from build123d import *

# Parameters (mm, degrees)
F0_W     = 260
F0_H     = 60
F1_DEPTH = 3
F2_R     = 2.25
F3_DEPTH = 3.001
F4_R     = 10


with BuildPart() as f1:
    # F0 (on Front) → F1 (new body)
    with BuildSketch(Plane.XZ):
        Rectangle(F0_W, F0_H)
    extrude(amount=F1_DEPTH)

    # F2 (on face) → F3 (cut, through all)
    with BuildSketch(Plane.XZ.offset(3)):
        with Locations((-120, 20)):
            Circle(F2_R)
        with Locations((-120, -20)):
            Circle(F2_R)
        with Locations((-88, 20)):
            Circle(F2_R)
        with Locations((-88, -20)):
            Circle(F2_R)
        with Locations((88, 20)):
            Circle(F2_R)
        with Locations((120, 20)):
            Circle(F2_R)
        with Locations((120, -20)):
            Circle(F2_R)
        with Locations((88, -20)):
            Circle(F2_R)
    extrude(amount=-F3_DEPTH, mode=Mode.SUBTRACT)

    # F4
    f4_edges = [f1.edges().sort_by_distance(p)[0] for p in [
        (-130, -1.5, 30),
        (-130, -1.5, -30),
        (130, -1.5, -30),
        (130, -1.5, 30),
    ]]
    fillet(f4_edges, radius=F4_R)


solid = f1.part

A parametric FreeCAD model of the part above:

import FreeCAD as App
import Part
import Sketcher
from FreeCAD import Vector
Q = App.Units.Quantity


def edges_at(feature, points):
    """Names of the edges that pass closest to the given points."""
    edges = feature.Shape.Edges
    near = lambda p: min(range(len(edges)), key=lambda i: edges[i].distToShape(Part.Vertex(*p))[0])
    return sorted({f"Edge{near(p) + 1}" for p in points})

doc = App.newDocument("Part")
params = doc.addObject("Spreadsheet::Sheet", "Params")
for row, (alias, value) in enumerate([
    ("sketch1_width", "260 mm"),
    ("sketch1_height", "60 mm"),
    ("pad1_length", "3 mm"),
    ("sketch2_diameter", "4.5 mm"),
    ("fillet_radius", "10 mm"),
], start=1):
    params.set(f"A{row}", alias)
    params.set(f"B{row}", "=" + value)
    params.setAlias(f"B{row}", alias)

body = doc.addObject("PartDesign::Body", "Body")

# Sketch on XZ plane
sketch1 = doc.addObject("Sketcher::SketchObject", "Sketch")
body.addObject(sketch1)
sketch1.AttachmentSupport = (doc.XZ_Plane, [""])
sketch1.MapMode = "FlatFace"
sketch1.addGeometry([
    Part.LineSegment(Vector(-130, 30, 0), Vector(-130, -30, 0)),
    Part.LineSegment(Vector(-130, -30, 0), Vector(130, -30, 0)),
    Part.LineSegment(Vector(130, -30, 0), Vector(130, 30, 0)),
    Part.LineSegment(Vector(130, 30, 0), Vector(-130, 30, 0)),
], False)
sketch1.addConstraint([
    Sketcher.Constraint("Coincident", 0, 2, 1, 1),
    Sketcher.Constraint("Coincident", 1, 2, 2, 1),
    Sketcher.Constraint("Coincident", 2, 2, 3, 1),
    Sketcher.Constraint("Coincident", 3, 2, 0, 1),
    Sketcher.Constraint("Vertical", 0),
    Sketcher.Constraint("Horizontal", 1),
    Sketcher.Constraint("Vertical", 2),
    Sketcher.Constraint("Horizontal", 3),
    Sketcher.Constraint("Symmetric", 0, 2, 2, 2, -1, 1),
    Sketcher.Constraint("DistanceX", 1, 1, 1, 2, Q("260 mm")),
    Sketcher.Constraint("DistanceY", 0, 2, 0, 1, Q("60 mm")),
])
sketch1.setExpression("Constraints[9]", "Params.sketch1_width")
sketch1.setExpression("Constraints[10]", "Params.sketch1_height")
pad1 = doc.addObject("PartDesign::Pad", "Pad")
body.addObject(pad1)
pad1.Profile = sketch1
pad1.setExpression("Length", "Params.pad1_length")

# Sketch on XZ plane
sketch2 = doc.addObject("Sketcher::SketchObject", "Sketch001")
body.addObject(sketch2)
sketch2.AttachmentSupport = (doc.XZ_Plane, [""])
sketch2.MapMode = "FlatFace"
sketch2.AttachmentOffset = App.Placement(Vector(0, 0, 3), App.Rotation())
sketch2.addGeometry([
    Part.Circle(Vector(-120, 20, 0), Vector(0, 0, 1), 2.2),  # 0
    Part.Circle(Vector(-120, -20, 0), Vector(0, 0, 1), 2.2),  # 1
    Part.Circle(Vector(-88, 20, 0), Vector(0, 0, 1), 2.2),  # 2
    Part.Circle(Vector(-88, -20, 0), Vector(0, 0, 1), 2.2),  # 3
    Part.Circle(Vector(88, 20, 0), Vector(0, 0, 1), 2.2),  # 4
    Part.Circle(Vector(120, 20, 0), Vector(0, 0, 1), 2.2),  # 5
    Part.Circle(Vector(120, -20, 0), Vector(0, 0, 1), 2.2),  # 6
    Part.Circle(Vector(88, -20, 0), Vector(0, 0, 1), 2.2),  # 7
], False)
sketch2.addConstraint([
    Sketcher.Constraint("Equal", 0, 1),
    Sketcher.Constraint("Equal", 1, 2),
    Sketcher.Constraint("Equal", 2, 3),
    Sketcher.Constraint("Equal", 3, 4),
    Sketcher.Constraint("Equal", 4, 5),
    Sketcher.Constraint("Equal", 5, 6),
    Sketcher.Constraint("Equal", 6, 7),
    Sketcher.Constraint("Symmetric", 3, 3, 4, 3, -1, 1),
    Sketcher.Constraint("Symmetric", 1, 3, 5, 3, -1, 1),
    Sketcher.Constraint("Symmetric", 0, 3, 6, 3, -1, 1),
    Sketcher.Constraint("Symmetric", 2, 3, 7, 3, -1, 1),
    Sketcher.Constraint("Symmetric", 2, 3, 4, 3, -2),
    Sketcher.Constraint("Symmetric", 0, 3, 5, 3, -2),
    Sketcher.Constraint("Horizontal", 0, 3, 2, 3),
    Sketcher.Constraint("Diameter", 0, Q("4.5 mm")),
    Sketcher.Constraint("DistanceX", 0, 3, -1, 1, Q("120 mm")),
    Sketcher.Constraint("DistanceY", -1, 1, 0, 3, Q("20 mm")),
    Sketcher.Constraint("DistanceX", 2, 3, -1, 1, Q("88 mm")),
])
sketch2.setExpression("Constraints[14]", "Params.sketch2_diameter")
pocket1 = doc.addObject("PartDesign::Pocket", "Pocket")
body.addObject(pocket1)
pocket1.Profile = sketch2
pocket1.Type = "ThroughAll"
doc.recompute()

fillet = doc.addObject("PartDesign::Fillet", "Fillet")
body.addObject(fillet)
fillet.Base = (pocket1, edges_at(pocket1, [
    (-130, -1.5, 30),
    (-130, -1.5, -30),
    (130, -1.5, -30),
    (130, -1.5, 30),
]))
fillet.setExpression("Radius", "Params.fillet_radius")

doc.recompute()
